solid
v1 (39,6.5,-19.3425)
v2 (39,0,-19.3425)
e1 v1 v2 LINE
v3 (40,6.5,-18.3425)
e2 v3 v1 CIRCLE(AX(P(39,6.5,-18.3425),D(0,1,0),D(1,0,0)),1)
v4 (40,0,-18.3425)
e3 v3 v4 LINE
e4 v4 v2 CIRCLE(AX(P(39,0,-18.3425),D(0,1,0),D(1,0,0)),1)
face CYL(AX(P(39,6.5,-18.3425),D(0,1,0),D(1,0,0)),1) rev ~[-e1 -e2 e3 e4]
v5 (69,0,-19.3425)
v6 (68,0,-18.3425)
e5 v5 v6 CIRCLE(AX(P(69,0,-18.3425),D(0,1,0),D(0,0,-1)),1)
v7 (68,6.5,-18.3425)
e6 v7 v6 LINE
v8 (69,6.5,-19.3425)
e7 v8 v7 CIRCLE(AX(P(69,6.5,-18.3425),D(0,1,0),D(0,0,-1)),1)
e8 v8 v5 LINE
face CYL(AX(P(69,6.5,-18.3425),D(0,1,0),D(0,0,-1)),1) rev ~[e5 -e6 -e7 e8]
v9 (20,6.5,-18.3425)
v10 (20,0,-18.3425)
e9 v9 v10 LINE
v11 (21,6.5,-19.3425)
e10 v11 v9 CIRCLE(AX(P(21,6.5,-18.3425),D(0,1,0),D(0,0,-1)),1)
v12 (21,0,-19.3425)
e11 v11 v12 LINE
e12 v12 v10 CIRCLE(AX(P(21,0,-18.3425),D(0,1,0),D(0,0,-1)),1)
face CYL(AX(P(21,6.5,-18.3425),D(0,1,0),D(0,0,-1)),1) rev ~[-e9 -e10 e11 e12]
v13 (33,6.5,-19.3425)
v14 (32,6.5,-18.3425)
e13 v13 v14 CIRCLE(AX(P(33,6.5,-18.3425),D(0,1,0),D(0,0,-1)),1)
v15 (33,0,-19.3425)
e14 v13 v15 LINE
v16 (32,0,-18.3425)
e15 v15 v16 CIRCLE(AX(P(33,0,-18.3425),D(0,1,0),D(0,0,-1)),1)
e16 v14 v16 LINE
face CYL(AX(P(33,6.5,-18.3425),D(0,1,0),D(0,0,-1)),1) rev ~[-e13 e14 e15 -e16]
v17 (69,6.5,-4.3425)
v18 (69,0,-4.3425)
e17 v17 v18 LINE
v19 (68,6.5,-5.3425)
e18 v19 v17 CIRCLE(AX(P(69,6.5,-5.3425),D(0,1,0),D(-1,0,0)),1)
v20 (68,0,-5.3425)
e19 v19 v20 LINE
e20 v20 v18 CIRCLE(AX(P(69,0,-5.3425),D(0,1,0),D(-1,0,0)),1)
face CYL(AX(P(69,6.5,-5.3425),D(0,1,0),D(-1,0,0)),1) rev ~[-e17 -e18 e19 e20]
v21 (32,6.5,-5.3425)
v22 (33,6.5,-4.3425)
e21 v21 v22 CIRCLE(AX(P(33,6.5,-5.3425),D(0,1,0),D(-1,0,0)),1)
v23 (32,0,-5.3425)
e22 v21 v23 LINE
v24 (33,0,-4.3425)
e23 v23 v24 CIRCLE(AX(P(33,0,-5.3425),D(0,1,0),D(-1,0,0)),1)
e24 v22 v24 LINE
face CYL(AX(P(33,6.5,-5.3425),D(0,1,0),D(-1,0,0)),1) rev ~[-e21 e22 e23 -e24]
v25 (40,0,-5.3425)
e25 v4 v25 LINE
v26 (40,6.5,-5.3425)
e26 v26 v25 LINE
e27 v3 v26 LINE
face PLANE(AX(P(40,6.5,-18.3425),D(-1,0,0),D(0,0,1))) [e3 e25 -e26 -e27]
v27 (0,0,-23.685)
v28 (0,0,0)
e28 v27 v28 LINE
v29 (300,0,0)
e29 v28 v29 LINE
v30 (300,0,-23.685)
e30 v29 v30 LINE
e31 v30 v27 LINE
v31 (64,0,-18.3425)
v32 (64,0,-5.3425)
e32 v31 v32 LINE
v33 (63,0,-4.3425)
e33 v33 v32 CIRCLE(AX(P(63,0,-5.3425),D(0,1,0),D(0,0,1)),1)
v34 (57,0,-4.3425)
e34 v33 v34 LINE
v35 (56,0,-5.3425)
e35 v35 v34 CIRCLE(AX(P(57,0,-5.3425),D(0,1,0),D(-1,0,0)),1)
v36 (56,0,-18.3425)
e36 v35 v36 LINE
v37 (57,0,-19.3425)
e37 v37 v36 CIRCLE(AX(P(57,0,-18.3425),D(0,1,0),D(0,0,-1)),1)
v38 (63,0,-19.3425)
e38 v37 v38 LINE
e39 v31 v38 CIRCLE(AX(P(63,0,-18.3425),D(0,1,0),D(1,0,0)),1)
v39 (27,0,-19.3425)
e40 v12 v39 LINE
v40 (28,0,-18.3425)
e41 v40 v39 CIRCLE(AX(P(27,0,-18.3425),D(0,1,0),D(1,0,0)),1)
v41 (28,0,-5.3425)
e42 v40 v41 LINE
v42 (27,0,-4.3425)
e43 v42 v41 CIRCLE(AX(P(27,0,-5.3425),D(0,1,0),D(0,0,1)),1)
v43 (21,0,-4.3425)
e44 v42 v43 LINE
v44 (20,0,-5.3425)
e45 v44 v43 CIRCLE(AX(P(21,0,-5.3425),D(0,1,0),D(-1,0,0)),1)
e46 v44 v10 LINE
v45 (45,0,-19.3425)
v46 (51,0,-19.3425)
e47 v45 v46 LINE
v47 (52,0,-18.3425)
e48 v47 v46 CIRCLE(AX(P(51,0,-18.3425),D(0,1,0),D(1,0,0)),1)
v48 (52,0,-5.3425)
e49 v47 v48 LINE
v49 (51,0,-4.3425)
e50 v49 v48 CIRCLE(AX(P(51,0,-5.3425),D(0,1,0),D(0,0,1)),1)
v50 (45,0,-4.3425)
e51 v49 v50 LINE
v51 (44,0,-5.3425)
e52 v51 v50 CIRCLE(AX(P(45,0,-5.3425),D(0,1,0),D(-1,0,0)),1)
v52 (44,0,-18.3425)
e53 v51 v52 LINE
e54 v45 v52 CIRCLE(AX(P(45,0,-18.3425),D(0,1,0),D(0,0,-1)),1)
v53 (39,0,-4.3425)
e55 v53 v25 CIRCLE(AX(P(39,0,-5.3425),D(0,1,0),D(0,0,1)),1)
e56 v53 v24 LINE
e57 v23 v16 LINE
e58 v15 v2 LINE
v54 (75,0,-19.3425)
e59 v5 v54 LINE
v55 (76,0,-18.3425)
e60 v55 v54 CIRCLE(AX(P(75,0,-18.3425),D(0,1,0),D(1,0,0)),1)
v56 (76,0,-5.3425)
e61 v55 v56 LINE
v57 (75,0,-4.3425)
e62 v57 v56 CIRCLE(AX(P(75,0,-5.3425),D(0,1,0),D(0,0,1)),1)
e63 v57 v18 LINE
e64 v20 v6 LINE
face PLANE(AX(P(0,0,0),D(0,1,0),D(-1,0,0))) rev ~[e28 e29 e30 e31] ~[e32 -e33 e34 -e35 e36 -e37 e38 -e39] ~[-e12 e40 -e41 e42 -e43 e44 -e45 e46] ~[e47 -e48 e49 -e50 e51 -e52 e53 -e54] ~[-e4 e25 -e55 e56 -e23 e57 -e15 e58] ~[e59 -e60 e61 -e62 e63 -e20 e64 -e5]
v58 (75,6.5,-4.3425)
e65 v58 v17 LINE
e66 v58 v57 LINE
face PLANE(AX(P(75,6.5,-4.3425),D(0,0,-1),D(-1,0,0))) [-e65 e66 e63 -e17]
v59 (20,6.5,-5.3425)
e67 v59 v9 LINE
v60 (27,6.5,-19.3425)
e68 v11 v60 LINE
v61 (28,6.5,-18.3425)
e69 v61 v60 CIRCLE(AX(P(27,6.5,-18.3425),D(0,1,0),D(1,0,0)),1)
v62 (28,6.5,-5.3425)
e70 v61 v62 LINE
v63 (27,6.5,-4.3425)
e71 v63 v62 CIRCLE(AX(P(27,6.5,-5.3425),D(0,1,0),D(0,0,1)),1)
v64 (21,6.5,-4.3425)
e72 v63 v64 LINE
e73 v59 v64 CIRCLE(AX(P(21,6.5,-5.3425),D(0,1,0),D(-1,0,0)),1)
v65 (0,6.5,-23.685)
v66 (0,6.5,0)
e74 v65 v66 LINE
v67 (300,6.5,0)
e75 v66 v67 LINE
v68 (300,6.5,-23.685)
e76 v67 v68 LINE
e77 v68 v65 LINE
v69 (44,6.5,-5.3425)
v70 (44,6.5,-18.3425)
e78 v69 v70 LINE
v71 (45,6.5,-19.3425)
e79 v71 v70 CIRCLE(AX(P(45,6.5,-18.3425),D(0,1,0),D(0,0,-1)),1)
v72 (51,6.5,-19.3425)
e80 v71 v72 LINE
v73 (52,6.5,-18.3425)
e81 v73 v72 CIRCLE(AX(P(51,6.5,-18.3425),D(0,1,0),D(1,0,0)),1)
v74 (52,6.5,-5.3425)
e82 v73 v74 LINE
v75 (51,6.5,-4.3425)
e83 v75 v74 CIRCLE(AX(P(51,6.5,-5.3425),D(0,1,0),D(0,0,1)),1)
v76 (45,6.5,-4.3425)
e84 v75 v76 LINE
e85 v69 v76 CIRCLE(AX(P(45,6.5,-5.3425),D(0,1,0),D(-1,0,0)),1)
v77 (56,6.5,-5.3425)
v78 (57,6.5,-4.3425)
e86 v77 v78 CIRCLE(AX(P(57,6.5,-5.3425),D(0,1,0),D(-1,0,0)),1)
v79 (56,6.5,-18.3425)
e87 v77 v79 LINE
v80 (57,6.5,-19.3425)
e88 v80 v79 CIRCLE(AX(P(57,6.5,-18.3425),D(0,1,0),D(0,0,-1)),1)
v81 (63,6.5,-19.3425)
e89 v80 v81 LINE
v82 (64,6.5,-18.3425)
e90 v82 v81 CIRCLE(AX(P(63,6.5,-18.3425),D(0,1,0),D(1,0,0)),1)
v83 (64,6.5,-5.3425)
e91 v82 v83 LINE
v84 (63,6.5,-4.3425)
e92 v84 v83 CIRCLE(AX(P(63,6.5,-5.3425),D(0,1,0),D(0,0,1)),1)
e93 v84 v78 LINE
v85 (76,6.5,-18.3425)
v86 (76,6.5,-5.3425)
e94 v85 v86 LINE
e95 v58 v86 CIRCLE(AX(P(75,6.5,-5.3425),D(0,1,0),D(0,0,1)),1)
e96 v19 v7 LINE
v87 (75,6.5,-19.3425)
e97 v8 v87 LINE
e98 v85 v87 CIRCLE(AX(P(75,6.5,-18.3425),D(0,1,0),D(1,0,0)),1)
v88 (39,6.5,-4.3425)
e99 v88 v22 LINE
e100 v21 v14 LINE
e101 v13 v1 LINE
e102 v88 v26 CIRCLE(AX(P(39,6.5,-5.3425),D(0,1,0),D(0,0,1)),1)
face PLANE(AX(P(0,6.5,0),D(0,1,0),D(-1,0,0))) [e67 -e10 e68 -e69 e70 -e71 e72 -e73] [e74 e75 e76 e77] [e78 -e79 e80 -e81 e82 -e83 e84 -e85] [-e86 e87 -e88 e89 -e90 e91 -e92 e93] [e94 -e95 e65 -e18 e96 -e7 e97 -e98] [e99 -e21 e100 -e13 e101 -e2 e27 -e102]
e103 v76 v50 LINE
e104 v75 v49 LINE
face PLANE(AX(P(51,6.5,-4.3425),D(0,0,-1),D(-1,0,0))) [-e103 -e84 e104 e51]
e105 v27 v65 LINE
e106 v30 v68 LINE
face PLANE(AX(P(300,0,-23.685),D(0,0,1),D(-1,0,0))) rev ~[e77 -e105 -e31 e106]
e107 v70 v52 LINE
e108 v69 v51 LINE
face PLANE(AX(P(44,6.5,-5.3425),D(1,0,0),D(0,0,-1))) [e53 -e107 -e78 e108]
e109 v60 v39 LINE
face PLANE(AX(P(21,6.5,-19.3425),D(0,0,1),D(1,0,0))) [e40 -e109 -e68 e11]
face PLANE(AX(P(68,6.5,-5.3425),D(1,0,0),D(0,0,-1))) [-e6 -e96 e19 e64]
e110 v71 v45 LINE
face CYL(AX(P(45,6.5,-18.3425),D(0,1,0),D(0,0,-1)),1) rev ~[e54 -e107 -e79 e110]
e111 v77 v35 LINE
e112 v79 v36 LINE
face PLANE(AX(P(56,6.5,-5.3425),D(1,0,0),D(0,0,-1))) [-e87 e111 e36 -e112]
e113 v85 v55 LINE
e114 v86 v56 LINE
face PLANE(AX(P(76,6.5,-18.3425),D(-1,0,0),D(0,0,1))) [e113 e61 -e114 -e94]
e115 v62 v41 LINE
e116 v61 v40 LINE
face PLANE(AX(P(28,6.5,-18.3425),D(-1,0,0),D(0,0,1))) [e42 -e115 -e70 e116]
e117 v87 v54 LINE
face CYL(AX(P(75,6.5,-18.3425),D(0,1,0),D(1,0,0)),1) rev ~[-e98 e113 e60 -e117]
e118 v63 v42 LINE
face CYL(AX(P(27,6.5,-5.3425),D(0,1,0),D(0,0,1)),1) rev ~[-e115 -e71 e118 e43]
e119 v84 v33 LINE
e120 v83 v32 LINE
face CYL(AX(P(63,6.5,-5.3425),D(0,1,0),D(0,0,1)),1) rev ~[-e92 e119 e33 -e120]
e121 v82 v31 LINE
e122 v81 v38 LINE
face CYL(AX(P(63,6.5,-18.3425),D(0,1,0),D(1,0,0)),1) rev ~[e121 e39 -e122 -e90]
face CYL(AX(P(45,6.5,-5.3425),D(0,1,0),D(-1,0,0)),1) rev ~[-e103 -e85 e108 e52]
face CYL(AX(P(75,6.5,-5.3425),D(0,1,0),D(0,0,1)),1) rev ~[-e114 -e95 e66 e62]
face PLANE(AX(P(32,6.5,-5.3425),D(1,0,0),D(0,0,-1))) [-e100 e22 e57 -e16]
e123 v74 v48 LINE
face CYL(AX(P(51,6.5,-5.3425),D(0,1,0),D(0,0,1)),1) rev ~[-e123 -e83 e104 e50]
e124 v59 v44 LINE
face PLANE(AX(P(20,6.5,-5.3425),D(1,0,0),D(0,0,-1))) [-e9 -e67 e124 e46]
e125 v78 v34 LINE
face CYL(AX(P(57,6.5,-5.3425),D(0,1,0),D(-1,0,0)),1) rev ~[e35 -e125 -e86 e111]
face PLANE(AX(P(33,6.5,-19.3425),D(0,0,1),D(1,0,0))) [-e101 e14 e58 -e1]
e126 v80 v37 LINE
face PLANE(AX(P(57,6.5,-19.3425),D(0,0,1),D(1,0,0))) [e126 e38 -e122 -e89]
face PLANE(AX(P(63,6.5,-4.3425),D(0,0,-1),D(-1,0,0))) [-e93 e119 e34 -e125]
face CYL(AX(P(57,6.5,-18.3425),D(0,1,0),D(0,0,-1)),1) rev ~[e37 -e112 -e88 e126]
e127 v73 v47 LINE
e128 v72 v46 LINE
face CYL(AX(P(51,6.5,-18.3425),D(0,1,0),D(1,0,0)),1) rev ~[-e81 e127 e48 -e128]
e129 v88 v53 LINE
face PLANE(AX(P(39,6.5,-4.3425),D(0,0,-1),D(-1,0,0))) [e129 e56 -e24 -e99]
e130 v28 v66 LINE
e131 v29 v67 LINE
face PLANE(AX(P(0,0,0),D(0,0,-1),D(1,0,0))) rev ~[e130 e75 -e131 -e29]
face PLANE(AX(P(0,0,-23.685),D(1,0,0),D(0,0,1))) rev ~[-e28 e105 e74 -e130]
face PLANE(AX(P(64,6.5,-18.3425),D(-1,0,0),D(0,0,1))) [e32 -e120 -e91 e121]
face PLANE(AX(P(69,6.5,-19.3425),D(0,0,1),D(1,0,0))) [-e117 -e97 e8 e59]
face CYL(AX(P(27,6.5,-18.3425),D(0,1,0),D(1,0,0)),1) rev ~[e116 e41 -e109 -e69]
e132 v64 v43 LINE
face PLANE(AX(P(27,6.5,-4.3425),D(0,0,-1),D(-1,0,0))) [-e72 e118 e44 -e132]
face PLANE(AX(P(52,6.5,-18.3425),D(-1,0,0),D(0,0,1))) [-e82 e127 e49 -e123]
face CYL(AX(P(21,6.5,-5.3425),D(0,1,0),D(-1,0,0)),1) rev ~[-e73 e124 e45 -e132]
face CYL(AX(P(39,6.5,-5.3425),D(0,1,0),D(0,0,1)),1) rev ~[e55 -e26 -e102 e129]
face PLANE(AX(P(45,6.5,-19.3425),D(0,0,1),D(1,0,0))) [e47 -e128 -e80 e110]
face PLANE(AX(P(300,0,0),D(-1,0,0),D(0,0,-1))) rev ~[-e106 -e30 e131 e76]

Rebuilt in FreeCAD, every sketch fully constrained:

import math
import FreeCAD as App
import Part
import Sketcher
from FreeCAD import Vector
Q = App.Units.Quantity

doc = App.newDocument("Part")
params = doc.addObject("Spreadsheet::Sheet", "Params")
for row, (alias, value) in enumerate([
    ("sketch1_width", "300 mm"),
    ("pad1_length", "6.5 mm"),
    ("sketch2_radius", "1 mm"),
    ("sketch2_height", "13 mm"),
    ("linearpattern_pitch", "12 mm"),
], start=1):
    params.set(f"A{row}", alias)
    params.set(f"B{row}", "=" + value)
    params.setAlias(f"B{row}", alias)

body = doc.addObject("PartDesign::Body", "Body")

# Sketch on XZ plane
sketch1 = doc.addObject("Sketcher::SketchObject", "Sketch")
body.addObject(sketch1)
sketch1.AttachmentSupport = (doc.XZ_Plane, [""])
sketch1.MapMode = "FlatFace"
sketch1.addGeometry([
    Part.LineSegment(Vector(0, -24, 0), Vector(0, 0, 0)),
    Part.LineSegment(Vector(0, 0, 0), Vector(300, 0, 0)),
    Part.LineSegment(Vector(300, 0, 0), Vector(300, -24, 0)),
    Part.LineSegment(Vector(300, -24, 0), Vector(0, -24, 0)),
], False)
sketch1.addConstraint([
    Sketcher.Constraint("Coincident", 0, 2, 1, 1),
    Sketcher.Constraint("Coincident", 1, 2, 2, 1),
    Sketcher.Constraint("Coincident", 2, 2, 3, 1),
    Sketcher.Constraint("Coincident", 3, 2, 0, 1),
    Sketcher.Constraint("Vertical", 0),
    Sketcher.Constraint("Horizontal", 1),
    Sketcher.Constraint("Vertical", 2),
    Sketcher.Constraint("Horizontal", 3),
    Sketcher.Constraint("Coincident", 0, 2, -1, 1),
    Sketcher.Constraint("DistanceX", 1, 1, 1, 2, Q("300 mm")),
    Sketcher.Constraint("DistanceY", 0, 1, 0, 2, Q("23.685 mm")),
])
sketch1.setExpression("Constraints[9]", "Params.sketch1_width")
pad1 = doc.addObject("PartDesign::Pad", "Pad")
body.addObject(pad1)
pad1.Profile = sketch1
pad1.setExpression("Length", "Params.pad1_length")
pad1.Reversed = True

# Sketch on XZ plane
sketch2 = doc.addObject("Sketcher::SketchObject", "Sketch001")
body.addObject(sketch2)
sketch2.AttachmentSupport = (doc.XZ_Plane, [""])
sketch2.MapMode = "FlatFace"
sketch2.AttachmentOffset = App.Placement(Vector(0, 0, -6.5), App.Rotation())
sketch2.addGeometry([
    Part.LineSegment(Vector(27, -19.3, 0), Vector(21, -19.3, 0)),  # 0
    Part.ArcOfCircle(Part.Circle(Vector(21, -18.3, 0), Vector(0, 0, 1), 1), math.radians(180), math.radians(270)),  # 1
    Part.LineSegment(Vector(20, -18.3, 0), Vector(20, -5.3, 0)),  # 2
    Part.ArcOfCircle(Part.Circle(Vector(21, -5.3, 0), Vector(0, 0, 1), 1), math.radians(90), math.radians(180)),  # 3
    Part.LineSegment(Vector(21, -4.3, 0), Vector(27, -4.3, 0)),  # 4
    Part.ArcOfCircle(Part.Circle(Vector(27, -5.3, 0), Vector(0, 0, 1), 1), math.radians(0), math.radians(90)),  # 5
    Part.LineSegment(Vector(28, -5.3, 0), Vector(28, -18.3, 0)),  # 6
    Part.ArcOfCircle(Part.Circle(Vector(27, -18.3, 0), Vector(0, 0, 1), 1), math.radians(-90), math.radians(0)),  # 7
], False)
sketch2.addConstraint([
    Sketcher.Constraint("Tangent", 0, 2, 1, 2),
    Sketcher.Constraint("Tangent", 1, 1, 2, 1),
    Sketcher.Constraint("Tangent", 2, 2, 3, 2),
    Sketcher.Constraint("Tangent", 3, 1, 4, 1),
    Sketcher.Constraint("Tangent", 4, 2, 5, 2),
    Sketcher.Constraint("Tangent", 5, 1, 6, 1),
    Sketcher.Constraint("Tangent", 6, 2, 7, 2),
    Sketcher.Constraint("Tangent", 7, 1, 0, 1),
    Sketcher.Constraint("Horizontal", 0),
    Sketcher.Constraint("Vertical", 2),
    Sketcher.Constraint("Horizontal", 4),
    Sketcher.Constraint("Vertical", 6),
    Sketcher.Constraint("Equal", 1, 3),
    Sketcher.Constraint("Equal", 3, 5),
    Sketcher.Constraint("Equal", 5, 7),
    Sketcher.Constraint("Radius", 1, Q("1 mm")),
    Sketcher.Constraint("DistanceX", -1, 1, 1, 1, Q("20 mm")),
    Sketcher.Constraint("DistanceX", 2, 2, 5, 1, Q("8 mm")),
    Sketcher.Constraint("DistanceY", 2, 1, 2, 2, Q("13 mm")),
    Sketcher.Constraint("DistanceY", 1, 3, -1, 1, Q("18.3425 mm")),
])
sketch2.setExpression("Constraints[15]", "Params.sketch2_radius")
sketch2.setExpression("Constraints[18]", "Params.sketch2_height")
pocket1 = doc.addObject("PartDesign::Pocket", "Pocket")
body.addObject(pocket1)
pocket1.Profile = sketch2
pocket1.Type = "ThroughAll"
pocket1.Reversed = True
doc.recompute()

linearpattern = doc.addObject("PartDesign::LinearPattern", "LinearPattern")
body.addObject(linearpattern)
linearpattern.Originals = [pocket1]
linearpattern.Direction = (doc.X_Axis, [""])
linearpattern.Mode = "offset"
linearpattern.setExpression("Offset", "Params.linearpattern_pitch")
linearpattern.Occurrences = 5
body.Tip = linearpattern

doc.recompute()
